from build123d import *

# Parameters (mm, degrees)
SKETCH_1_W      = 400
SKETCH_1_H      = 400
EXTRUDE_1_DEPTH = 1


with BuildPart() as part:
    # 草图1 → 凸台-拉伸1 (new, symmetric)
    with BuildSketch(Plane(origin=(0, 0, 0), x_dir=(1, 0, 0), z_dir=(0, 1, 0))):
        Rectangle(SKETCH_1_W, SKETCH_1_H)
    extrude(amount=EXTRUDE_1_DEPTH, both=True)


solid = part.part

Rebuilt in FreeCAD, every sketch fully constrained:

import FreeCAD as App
import Part
import Sketcher

V = App.Vector
Q = App.Units.Quantity


def add_polygon(sketch, points):
    """Adds a closed chain of lines whose ends are joined by coincident constraints."""
    first, n = sketch.GeometryCount, len(points)
    for a, b in zip(points, points[1:] + points[:1]):
        sketch.addGeometry(Part.LineSegment(App.Vector(*a, 0), App.Vector(*b, 0)), False)
    for i in range(n):
        sketch.addConstraint(Sketcher.Constraint("Coincident", first + i, 2, first + (i + 1) % n, 1))

doc = App.newDocument("Part")
body = doc.addObject("PartDesign::Body", "Body")

# Sketch on XZ plane
sketch1 = body.newObject("Sketcher::SketchObject", "Sketch")
sketch1.AttachmentSupport = (doc.getObject("XZ_Plane"), [""])
sketch1.MapMode = "FlatFace"
add_polygon(sketch1, [(-200, -200), (-200, 200), (200, 200), (200, -200)])  # lines 0-3
sketch1.addConstraint([
    Sketcher.Constraint("Vertical", 0),
    Sketcher.Constraint("Horizontal", 1),
    Sketcher.Constraint("Vertical", 2),
    Sketcher.Constraint("Horizontal", 3),
    Sketcher.Constraint("Symmetric", 0, 2, 2, 2, -1, 1),
    Sketcher.Constraint("Equal", 3, 0),
    Sketcher.Constraint("DistanceX", 1, 1, 1, 2, Q("400 mm")),
])
pad1 = body.newObject("PartDesign::Pad", "Pad")
pad1.Profile = sketch1
pad1.Length = 2
pad1.Midplane = True

doc.recompute()
